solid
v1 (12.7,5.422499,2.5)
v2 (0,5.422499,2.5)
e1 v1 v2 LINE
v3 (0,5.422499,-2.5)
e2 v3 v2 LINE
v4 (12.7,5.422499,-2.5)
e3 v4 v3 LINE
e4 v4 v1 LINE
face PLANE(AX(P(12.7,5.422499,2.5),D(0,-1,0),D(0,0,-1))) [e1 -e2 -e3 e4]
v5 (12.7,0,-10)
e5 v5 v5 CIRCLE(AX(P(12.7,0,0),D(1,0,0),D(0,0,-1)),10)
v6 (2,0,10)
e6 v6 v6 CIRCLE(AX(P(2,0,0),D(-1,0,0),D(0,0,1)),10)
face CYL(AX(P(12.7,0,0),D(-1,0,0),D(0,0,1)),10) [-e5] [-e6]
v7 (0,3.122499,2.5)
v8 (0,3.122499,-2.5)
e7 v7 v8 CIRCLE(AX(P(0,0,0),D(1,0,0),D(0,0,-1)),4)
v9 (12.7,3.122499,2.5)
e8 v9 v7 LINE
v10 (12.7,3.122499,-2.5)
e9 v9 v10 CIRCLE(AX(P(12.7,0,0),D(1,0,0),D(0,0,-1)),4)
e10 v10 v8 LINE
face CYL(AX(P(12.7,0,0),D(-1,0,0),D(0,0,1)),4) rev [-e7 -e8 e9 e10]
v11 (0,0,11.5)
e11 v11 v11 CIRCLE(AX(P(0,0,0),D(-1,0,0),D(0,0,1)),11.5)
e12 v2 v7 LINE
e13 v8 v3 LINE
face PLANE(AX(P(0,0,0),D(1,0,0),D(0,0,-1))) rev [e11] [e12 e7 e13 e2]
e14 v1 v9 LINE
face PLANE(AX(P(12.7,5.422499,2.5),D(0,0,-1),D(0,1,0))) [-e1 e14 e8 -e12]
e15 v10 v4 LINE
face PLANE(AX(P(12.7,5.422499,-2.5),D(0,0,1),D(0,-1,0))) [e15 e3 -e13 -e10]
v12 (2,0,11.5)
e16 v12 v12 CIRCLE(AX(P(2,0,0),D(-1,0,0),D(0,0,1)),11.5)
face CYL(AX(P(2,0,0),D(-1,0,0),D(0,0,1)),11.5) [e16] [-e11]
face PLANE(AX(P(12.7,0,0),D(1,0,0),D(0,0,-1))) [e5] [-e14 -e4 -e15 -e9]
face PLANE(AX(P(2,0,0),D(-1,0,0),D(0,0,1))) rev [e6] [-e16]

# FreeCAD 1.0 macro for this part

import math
import FreeCAD as App
import Part
import Sketcher

V = App.Vector

doc = App.newDocument("Part")
body = doc.addObject("PartDesign::Body", "Body")

sketch1 = body.newObject("Sketcher::SketchObject", "Sketch")
sketch1.AttachmentSupport = (doc.getObject("YZ_Plane"), [""])
sketch1.MapMode = "FlatFace"
sketch1.addGeometry([
    Part.Circle(V(0, 0, 0), V(0, 0, 1), 10),
    Part.LineSegment(V(3.1, 2.5, 0), V(5.4, 2.5, 0)),
    Part.LineSegment(V(5.4, 2.5, 0), V(5.4, -2.5, 0)),
    Part.LineSegment(V(5.4, -2.5, 0), V(3.1, -2.5, 0)),
    Part.ArcOfCircle(Part.Circle(V(0, 0, 0), V(0, 0, 1), 4), math.radians(39), math.radians(321)),
], False)
sketch1.addConstraint([
    Sketcher.Constraint("Coincident", 1, 2, 2, 1),
    Sketcher.Constraint("Coincident", 2, 2, 3, 1),
    Sketcher.Constraint("Coincident", 3, 2, 4, 2),
    Sketcher.Constraint("Coincident", 4, 1, 1, 1),
    Sketcher.Constraint("Horizontal", 1),
    Sketcher.Constraint("Vertical", 2),
    Sketcher.Constraint("Horizontal", 3),
    Sketcher.Constraint("Coincident", 0, 3, -1, 1),
    Sketcher.Constraint("Coincident", 4, 3, -1, 1),
    Sketcher.Constraint("Vertical", 3, 2, 4, 1),
    Sketcher.Constraint("Diameter", 0, 20.0),
    Sketcher.Constraint("Radius", 4, 4.0),
    Sketcher.Constraint("DistanceY", 2, 2, 2, 1, 5.0),
    Sketcher.Constraint("DistanceX", 1, 1, 1, 2, 2.3),
])
pad1 = body.newObject("PartDesign::Pad", "Pad")
pad1.Profile = sketch1
pad1.Length = 12.7

sketch2 = body.newObject("Sketcher::SketchObject", "Sketch001")
sketch2.AttachmentSupport = (doc.getObject("YZ_Plane"), [""])
sketch2.MapMode = "FlatFace"
sketch2.addGeometry([
    Part.Circle(V(0, 0, 0), V(0, 0, 1), 12),
    Part.Circle(V(0, 0, 0), V(0, 0, 1), 10),
], False)
sketch2.addConstraint([
    Sketcher.Constraint("Coincident", 0, 3, -1, 1),
    Sketcher.Constraint("Coincident", 1, 3, -1, 1),
    Sketcher.Constraint("Diameter", 0, 23.0),
    Sketcher.Constraint("Diameter", 1, 20.0),
])
pad2 = body.newObject("PartDesign::Pad", "Pad001")
pad2.Profile = sketch2
pad2.Length = 2

doc.recompute()
